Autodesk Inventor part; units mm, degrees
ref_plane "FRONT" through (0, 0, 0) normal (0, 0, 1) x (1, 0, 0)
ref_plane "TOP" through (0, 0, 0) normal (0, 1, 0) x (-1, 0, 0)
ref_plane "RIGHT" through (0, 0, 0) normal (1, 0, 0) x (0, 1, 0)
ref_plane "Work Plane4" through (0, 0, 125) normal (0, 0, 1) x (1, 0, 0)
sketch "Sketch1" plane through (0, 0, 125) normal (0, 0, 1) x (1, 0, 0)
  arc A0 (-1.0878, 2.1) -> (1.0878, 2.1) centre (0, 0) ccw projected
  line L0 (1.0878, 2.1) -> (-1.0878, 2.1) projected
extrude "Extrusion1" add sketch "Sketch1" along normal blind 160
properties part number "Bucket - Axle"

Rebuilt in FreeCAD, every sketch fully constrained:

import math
import FreeCAD as App
import Part
import Sketcher

V = App.Vector

doc = App.newDocument("Part")
body = doc.addObject("PartDesign::Body", "Body")

sketch1 = body.newObject("Sketcher::SketchObject", "Sketch")
sketch1.AttachmentSupport = (doc.getObject("XY_Plane"), [""])
sketch1.MapMode = "FlatFace"
sketch1.AttachmentOffset = App.Placement(V(0, 0, 125), App.Rotation())
sketch1.addGeometry(Part.LineSegment(V(1.1, 2.1, 0), V(-1.1, 2.1, 0)), False)
sketch1.addGeometry(Part.ArcOfCircle(Part.Circle(V(0, 0, 0), V(0, 0, 1), 2.4), math.radians(117), math.radians(423)), False)
sketch1.addConstraint(Sketcher.Constraint("Coincident", 0, 1, 1, 2))
sketch1.addConstraint(Sketcher.Constraint("Coincident", 1, 1, 0, 2))
sketch1.addConstraint(Sketcher.Constraint("Horizontal", 0))
sketch1.addConstraint(Sketcher.Constraint("Coincident", 1, 3, -1, 1))
sketch1.addConstraint(Sketcher.Constraint("Radius", 1, 2.365))
sketch1.addConstraint(Sketcher.Constraint("DistanceY", -1, 1, 0, 1, 2.1))
pad1 = body.newObject("PartDesign::Pad", "Pad")
pad1.Profile = sketch1
pad1.Length = 160

doc.recompute()
